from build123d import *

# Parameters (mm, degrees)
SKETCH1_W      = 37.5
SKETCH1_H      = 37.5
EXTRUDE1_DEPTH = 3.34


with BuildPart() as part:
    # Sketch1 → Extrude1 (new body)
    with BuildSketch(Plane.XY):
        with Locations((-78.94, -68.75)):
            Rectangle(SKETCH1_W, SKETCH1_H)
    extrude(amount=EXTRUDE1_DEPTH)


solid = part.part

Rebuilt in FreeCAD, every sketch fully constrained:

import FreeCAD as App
import Part
import Sketcher
Q = App.Units.Quantity


def add_polygon(sketch, points):
    """Adds a closed chain of lines whose ends are joined by coincident constraints."""
    first, n = sketch.GeometryCount, len(points)
    for a, b in zip(points, points[1:] + points[:1]):
        sketch.addGeometry(Part.LineSegment(App.Vector(*a, 0), App.Vector(*b, 0)), False)
    for i in range(n):
        sketch.addConstraint(Sketcher.Constraint("Coincident", first + i, 2, first + (i + 1) % n, 1))

doc = App.newDocument("Part")
body = doc.addObject("PartDesign::Body", "Body")

# Sketch on XY plane
sketch1 = body.newObject("Sketcher::SketchObject", "Sketch")
sketch1.AttachmentSupport = (doc.getObject("XY_Plane"), [""])
sketch1.MapMode = "FlatFace"
add_polygon(sketch1, [(-97.69, -50), (-97.69, -87.5), (-60.19, -87.5), (-60.19, -50)])  # lines 0-3
sketch1.addConstraint([
    Sketcher.Constraint("Vertical", 0),
    Sketcher.Constraint("Horizontal", 1),
    Sketcher.Constraint("Vertical", 2),
    Sketcher.Constraint("Horizontal", 3),
    Sketcher.Constraint("Equal", 3, 0),
    Sketcher.Constraint("DistanceX", 1, 1, 1, 2, Q("37.5 mm")),
    Sketcher.Constraint("DistanceY", 2, 2, -1, 1, Q("50 mm")),
    Sketcher.Constraint("DistanceX", 0, 2, -1, 1, Q("97.69 mm")),
])
pad1 = body.newObject("PartDesign::Pad", "Pad")
pad1.Profile = sketch1
pad1.Length = 3.34

doc.recompute()
